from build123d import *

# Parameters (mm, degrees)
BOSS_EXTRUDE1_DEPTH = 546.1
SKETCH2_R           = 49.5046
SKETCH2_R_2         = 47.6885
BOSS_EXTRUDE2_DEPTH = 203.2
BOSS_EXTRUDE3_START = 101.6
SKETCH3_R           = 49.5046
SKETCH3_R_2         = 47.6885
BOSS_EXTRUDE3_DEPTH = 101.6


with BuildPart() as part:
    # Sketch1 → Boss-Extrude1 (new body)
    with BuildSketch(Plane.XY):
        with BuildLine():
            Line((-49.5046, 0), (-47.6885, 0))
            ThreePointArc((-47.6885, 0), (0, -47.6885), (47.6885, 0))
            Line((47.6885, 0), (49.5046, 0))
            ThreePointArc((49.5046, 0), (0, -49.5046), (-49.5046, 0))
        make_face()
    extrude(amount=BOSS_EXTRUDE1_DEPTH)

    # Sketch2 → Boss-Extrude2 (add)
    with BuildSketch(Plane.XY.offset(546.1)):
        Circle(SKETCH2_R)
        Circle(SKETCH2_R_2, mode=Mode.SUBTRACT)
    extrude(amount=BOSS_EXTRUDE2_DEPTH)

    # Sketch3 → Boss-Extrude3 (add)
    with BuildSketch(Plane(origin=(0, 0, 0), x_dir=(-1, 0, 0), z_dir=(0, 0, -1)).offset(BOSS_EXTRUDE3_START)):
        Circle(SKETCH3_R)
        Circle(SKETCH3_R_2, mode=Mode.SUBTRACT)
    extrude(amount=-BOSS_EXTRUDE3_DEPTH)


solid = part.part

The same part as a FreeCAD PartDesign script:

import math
import FreeCAD as App
import Part
import Sketcher

V = App.Vector
Q = App.Units.Quantity

doc = App.newDocument("Part")
body = doc.addObject("PartDesign::Body", "Body")

sketch1 = doc.addObject("Sketcher::SketchObject", "Sketch")
body.addObject(sketch1)
sketch1.AttachmentSupport = (doc.XY_Plane, [""])
sketch1.MapMode = "FlatFace"
sketch1.addGeometry([
    Part.LineSegment(V(-47.6885, 0, 0), V(-49.5046, 0, 0)),
    Part.ArcOfCircle(Part.Circle(V(0, 0, 0), V(0, 0, 1), 49.5046), math.radians(180), math.radians(360)),
    Part.LineSegment(V(49.5046, 0, 0), V(47.6885, 0, 0)),
    Part.ArcOfCircle(Part.Circle(V(0, 0, 0), V(0, 0, 1), 47.6885), math.radians(180), math.radians(360)),
], False)
sketch1.addConstraint([
    Sketcher.Constraint("Coincident", 0, 2, 1, 1),
    Sketcher.Constraint("Coincident", 1, 2, 2, 1),
    Sketcher.Constraint("Coincident", 2, 2, 3, 2),
    Sketcher.Constraint("Coincident", 3, 1, 0, 1),
    Sketcher.Constraint("Horizontal", 0),
    Sketcher.Constraint("Horizontal", 2),
    Sketcher.Constraint("Coincident", 1, 3, -1, 1),
    Sketcher.Constraint("Coincident", 3, 3, -1, 1),
    Sketcher.Constraint("PointOnObject", 0, 2, -1),
    Sketcher.Constraint("PointOnObject", 1, 2, -1),
    Sketcher.Constraint("Radius", 1, Q("1.949 in")),
    Sketcher.Constraint("Radius", 3, Q("1.8775 in")),
])
pad1 = doc.addObject("PartDesign::Pad", "Pad")
body.addObject(pad1)
pad1.Profile = sketch1
pad1.Length = Q("21.5 in")

sketch2 = doc.addObject("Sketcher::SketchObject", "Sketch001")
body.addObject(sketch2)
sketch2.AttachmentSupport = (doc.XY_Plane, [""])
sketch2.MapMode = "FlatFace"
sketch2.AttachmentOffset = App.Placement(V(0, 0, 21.5 * 25.4), App.Rotation())
sketch2.addGeometry([
    Part.Circle(V(0, 0, 0), V(0, 0, 1), 49.5046),
    Part.Circle(V(0, 0, 0), V(0, 0, 1), 47.6885),
], False)
sketch2.addConstraint([
    Sketcher.Constraint("Coincident", 0, 3, -1, 1),
    Sketcher.Constraint("Coincident", 1, 3, -1, 1),
    Sketcher.Constraint("Diameter", 0, Q("3.898 in")),
    Sketcher.Constraint("Diameter", 1, Q("3.755 in")),
])
pad2 = doc.addObject("PartDesign::Pad", "Pad001")
body.addObject(pad2)
pad2.Profile = sketch2
pad2.Length = Q("8 in")

sketch3 = doc.addObject("Sketcher::SketchObject", "Sketch002")
body.addObject(sketch3)
sketch3.AttachmentSupport = (doc.XY_Plane, [""])
sketch3.MapMode = "FlatFace"
sketch3.AttachmentOffset = App.Placement(V(0, 0, -4 * 25.4), App.Rotation())
sketch3.addGeometry([
    Part.Circle(V(0, 0, 0), V(0, 0, 1), 49.5046),
    Part.Circle(V(0, 0, 0), V(0, 0, 1), 47.6885),
], False)
sketch3.addConstraint([
    Sketcher.Constraint("Coincident", 0, 3, -1, 1),
    Sketcher.Constraint("Coincident", 1, 3, -1, 1),
    Sketcher.Constraint("Diameter", 0, Q("3.898 in")),
    Sketcher.Constraint("Diameter", 1, Q("3.755 in")),
])
pad3 = doc.addObject("PartDesign::Pad", "Pad002")
body.addObject(pad3)
pad3.Profile = sketch3
pad3.Length = Q("4 in")

doc.recompute()
